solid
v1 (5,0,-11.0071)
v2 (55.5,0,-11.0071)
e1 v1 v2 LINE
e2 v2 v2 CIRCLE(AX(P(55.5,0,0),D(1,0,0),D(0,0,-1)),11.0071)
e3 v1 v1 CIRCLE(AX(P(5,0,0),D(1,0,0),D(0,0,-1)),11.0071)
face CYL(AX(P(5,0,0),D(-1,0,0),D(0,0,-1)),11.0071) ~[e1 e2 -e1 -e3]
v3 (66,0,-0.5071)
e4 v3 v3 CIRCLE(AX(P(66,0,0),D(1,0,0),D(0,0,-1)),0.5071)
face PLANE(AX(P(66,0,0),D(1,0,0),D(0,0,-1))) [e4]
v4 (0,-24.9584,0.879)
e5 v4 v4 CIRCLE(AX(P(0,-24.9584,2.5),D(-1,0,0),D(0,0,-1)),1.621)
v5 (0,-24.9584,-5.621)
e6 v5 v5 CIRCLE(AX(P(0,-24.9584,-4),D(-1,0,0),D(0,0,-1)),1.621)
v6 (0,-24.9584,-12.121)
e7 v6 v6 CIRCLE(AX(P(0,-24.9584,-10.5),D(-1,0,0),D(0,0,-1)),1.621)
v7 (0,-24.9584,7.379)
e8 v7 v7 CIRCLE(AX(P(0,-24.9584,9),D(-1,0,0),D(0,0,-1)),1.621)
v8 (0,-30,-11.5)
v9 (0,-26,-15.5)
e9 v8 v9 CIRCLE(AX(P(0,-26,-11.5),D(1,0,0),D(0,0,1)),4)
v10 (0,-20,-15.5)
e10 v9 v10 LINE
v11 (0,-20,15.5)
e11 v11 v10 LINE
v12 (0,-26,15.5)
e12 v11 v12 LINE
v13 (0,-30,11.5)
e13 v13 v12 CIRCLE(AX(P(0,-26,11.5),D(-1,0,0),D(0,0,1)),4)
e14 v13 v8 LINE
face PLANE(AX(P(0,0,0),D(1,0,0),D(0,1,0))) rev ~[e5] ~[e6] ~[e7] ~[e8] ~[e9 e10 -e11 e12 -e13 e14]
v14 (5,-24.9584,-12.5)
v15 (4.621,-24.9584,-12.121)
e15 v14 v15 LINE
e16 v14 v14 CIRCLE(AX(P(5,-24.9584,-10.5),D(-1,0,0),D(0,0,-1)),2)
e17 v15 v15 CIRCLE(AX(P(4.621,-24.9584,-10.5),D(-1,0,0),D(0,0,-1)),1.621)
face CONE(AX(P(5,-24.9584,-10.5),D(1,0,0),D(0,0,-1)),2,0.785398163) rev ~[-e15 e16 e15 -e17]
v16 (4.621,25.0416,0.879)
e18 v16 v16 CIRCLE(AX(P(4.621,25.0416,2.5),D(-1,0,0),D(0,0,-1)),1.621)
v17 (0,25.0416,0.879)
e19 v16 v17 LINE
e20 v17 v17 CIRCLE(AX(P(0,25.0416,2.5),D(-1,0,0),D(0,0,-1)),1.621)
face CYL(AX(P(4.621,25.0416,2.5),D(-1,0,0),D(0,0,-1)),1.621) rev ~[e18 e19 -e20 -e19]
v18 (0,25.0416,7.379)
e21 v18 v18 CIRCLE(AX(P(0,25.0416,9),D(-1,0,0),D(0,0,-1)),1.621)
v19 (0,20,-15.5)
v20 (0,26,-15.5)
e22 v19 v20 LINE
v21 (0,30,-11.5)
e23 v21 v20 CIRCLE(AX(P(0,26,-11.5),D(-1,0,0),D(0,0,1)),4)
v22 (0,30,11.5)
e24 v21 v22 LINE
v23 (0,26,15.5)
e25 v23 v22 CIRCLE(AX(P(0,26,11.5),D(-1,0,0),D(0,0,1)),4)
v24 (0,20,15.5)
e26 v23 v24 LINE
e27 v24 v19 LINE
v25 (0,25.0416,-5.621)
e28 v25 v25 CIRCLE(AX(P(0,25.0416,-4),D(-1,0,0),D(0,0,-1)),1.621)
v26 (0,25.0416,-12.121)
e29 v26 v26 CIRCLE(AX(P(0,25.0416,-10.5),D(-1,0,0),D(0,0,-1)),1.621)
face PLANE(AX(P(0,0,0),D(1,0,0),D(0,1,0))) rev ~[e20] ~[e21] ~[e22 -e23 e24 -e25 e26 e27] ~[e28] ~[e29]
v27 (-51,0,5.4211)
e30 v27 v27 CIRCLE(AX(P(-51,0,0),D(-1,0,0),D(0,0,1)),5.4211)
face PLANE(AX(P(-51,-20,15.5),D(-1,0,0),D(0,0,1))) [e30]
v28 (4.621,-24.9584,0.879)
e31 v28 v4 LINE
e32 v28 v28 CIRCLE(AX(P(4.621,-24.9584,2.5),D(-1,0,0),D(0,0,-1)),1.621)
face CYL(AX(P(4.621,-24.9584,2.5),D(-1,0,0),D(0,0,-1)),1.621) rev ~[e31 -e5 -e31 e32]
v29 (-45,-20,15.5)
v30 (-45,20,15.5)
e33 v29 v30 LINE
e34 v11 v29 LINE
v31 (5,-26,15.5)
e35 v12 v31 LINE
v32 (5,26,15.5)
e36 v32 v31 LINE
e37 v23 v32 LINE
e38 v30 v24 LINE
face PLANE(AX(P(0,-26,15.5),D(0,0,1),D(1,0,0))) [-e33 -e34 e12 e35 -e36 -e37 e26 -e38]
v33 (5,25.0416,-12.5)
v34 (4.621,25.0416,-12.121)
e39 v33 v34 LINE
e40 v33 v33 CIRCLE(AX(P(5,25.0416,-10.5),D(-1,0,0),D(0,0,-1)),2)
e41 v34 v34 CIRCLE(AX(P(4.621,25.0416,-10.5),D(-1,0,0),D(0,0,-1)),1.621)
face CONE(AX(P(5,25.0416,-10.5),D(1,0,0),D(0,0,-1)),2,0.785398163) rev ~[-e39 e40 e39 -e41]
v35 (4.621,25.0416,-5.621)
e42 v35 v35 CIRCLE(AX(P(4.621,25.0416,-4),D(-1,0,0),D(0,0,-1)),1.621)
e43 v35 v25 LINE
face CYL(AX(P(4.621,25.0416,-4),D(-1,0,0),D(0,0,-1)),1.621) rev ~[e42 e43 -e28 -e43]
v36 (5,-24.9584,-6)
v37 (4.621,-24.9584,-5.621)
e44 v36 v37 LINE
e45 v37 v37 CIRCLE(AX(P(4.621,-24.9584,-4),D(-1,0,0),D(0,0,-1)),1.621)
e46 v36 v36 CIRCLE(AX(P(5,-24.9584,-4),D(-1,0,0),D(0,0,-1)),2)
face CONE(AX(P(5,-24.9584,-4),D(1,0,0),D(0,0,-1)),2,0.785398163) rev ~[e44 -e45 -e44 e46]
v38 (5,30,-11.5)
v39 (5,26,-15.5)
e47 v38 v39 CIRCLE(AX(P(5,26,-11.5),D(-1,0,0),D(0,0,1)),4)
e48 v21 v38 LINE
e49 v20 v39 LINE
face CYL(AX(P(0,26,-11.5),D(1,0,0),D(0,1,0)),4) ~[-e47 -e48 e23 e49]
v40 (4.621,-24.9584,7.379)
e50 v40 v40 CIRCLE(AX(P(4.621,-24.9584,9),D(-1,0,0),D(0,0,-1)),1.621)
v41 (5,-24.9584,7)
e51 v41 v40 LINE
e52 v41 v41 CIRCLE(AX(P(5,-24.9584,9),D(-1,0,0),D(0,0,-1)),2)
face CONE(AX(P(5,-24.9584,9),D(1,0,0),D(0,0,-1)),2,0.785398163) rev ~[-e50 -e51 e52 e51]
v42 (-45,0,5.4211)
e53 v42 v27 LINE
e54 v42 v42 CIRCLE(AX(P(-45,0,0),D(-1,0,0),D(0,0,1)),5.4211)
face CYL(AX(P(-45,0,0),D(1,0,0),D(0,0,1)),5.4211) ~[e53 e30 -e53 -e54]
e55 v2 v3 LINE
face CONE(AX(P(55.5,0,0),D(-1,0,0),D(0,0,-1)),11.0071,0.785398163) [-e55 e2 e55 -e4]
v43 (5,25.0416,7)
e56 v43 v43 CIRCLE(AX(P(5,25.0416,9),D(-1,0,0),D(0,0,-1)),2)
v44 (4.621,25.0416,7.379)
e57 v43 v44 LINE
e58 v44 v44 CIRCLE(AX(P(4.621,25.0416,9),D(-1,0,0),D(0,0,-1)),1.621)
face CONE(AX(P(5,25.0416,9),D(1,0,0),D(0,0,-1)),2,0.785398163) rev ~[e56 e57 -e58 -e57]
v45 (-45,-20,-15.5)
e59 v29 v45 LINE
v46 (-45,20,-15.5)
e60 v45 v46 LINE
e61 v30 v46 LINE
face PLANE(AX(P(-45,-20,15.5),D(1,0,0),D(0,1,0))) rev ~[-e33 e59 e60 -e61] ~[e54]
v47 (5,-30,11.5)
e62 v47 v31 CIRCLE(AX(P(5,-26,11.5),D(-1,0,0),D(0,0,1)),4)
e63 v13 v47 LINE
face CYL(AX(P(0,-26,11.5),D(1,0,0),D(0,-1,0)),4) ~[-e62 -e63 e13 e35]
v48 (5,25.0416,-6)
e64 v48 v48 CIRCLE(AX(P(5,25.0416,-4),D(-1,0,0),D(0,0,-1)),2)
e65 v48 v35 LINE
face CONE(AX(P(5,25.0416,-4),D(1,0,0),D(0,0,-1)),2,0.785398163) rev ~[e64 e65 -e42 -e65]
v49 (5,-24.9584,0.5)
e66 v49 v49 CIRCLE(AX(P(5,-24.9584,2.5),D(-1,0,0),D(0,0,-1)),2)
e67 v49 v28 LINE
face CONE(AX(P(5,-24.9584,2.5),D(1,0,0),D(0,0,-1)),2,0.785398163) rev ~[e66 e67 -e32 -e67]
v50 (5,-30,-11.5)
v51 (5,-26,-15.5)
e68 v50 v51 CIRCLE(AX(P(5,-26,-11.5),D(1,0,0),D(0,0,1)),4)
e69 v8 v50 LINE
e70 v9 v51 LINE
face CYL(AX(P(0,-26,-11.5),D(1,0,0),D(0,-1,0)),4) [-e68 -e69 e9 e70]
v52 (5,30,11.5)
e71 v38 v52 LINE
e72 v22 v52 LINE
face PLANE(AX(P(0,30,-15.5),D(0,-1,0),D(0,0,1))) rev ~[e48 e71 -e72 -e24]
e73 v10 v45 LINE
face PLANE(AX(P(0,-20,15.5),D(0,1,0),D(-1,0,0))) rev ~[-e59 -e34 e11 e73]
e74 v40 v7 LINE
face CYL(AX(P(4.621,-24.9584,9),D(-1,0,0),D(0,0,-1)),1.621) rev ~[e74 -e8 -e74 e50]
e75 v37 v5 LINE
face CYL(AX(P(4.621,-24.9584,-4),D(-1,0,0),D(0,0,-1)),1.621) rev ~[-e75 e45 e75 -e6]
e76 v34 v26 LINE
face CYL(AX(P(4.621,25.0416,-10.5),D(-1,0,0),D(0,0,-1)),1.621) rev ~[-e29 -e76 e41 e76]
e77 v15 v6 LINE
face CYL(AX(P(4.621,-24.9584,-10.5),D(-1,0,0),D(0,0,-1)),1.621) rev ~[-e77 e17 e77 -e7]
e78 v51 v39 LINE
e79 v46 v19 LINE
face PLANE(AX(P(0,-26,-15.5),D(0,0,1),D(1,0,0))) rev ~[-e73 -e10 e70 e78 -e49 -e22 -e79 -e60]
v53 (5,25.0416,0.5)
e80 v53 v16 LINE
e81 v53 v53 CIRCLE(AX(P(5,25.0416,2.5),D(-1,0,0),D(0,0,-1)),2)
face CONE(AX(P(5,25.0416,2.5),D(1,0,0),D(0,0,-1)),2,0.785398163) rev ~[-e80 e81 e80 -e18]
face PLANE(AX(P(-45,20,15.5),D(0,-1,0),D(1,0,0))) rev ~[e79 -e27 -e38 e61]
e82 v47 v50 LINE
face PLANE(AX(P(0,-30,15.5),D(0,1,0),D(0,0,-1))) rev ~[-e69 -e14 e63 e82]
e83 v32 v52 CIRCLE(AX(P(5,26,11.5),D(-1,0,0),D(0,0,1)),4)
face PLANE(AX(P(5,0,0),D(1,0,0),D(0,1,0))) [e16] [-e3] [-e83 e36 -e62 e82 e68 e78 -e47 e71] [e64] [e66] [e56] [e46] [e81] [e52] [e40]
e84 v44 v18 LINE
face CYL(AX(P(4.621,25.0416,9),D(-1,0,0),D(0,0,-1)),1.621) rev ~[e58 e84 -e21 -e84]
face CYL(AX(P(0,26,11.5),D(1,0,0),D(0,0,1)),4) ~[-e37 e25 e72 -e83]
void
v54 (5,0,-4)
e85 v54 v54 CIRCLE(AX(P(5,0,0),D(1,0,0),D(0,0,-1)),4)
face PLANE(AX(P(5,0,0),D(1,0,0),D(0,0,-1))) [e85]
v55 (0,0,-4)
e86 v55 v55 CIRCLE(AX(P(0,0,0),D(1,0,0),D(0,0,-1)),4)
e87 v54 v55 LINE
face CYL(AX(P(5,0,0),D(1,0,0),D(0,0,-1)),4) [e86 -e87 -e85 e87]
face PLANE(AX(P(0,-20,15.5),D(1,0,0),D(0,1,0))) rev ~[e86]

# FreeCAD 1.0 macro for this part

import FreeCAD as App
import Part
import Sketcher

V = App.Vector
Q = App.Units.Quantity


def edges_at(feature, points):
    """Names of the edges that pass closest to the given points."""
    edges = feature.Shape.Edges
    near = lambda p: min(range(len(edges)), key=lambda i: edges[i].distToShape(Part.Vertex(*p))[0])
    return sorted({f"Edge{near(p) + 1}" for p in points})

doc = App.newDocument("Part")
params = doc.addObject("Spreadsheet::Sheet", "Params")
for row, (alias, value) in enumerate([
    ("sketch1_width", "60 mm"),
    ("sketch1_height", "31 mm"),
    ("pad1_length", "5 mm"),
    ("fillet_radius", "4 mm"),
    ("hole_diameter", "3.242 mm"),
    ("hole_depth", "11.8 mm"),
    ("hole_csink_diameter", "4 mm"),
    ("sketch3_diameter", "8 mm"),
    ("pocket1_length", "5 mm"),
    ("sketch4_height", "40 mm"),
    ("sketch4_width", "45 mm"),
    ("pad2_length", "31 mm"),
    ("pad3_length", "6 mm"),
    ("pad4_length", "61 mm"),
    ("chamfer_size", "10.5 mm"),
], start=1):
    params.set(f"A{row}", alias)
    params.set(f"B{row}", "=" + value)
    params.setAlias(f"B{row}", alias)

body = doc.addObject("PartDesign::Body", "Body")

# Sketch on YZ plane
sketch1 = body.newObject("Sketcher::SketchObject", "Sketch")
sketch1.AttachmentSupport = (doc.getObject("YZ_Plane"), [""])
sketch1.MapMode = "FlatFace"
sketch1.addGeometry(Part.LineSegment(V(-30, 16, 0), V(-30, -16, 0)), False)
sketch1.addGeometry(Part.LineSegment(V(-30, -16, 0), V(30, -16, 0)), False)
sketch1.addGeometry(Part.LineSegment(V(30, -16, 0), V(30, 16, 0)), False)
sketch1.addGeometry(Part.LineSegment(V(30, 16, 0), V(-30, 16, 0)), False)
sketch1.addConstraint(Sketcher.Constraint("Coincident", 0, 2, 1, 1))
sketch1.addConstraint(Sketcher.Constraint("Coincident", 1, 2, 2, 1))
sketch1.addConstraint(Sketcher.Constraint("Coincident", 2, 2, 3, 1))
sketch1.addConstraint(Sketcher.Constraint("Coincident", 3, 2, 0, 1))
sketch1.addConstraint(Sketcher.Constraint("Vertical", 0))
sketch1.addConstraint(Sketcher.Constraint("Horizontal", 1))
sketch1.addConstraint(Sketcher.Constraint("Vertical", 2))
sketch1.addConstraint(Sketcher.Constraint("Horizontal", 3))
sketch1.addConstraint(Sketcher.Constraint("Symmetric", 0, 2, 2, 2, -1, 1))
sketch1.addConstraint(Sketcher.Constraint("DistanceX", 1, 1, 1, 2, Q("60 mm")))
sketch1.addConstraint(Sketcher.Constraint("DistanceY", 0, 2, 0, 1, Q("31 mm")))
sketch1.setExpression("Constraints[9]", "Params.sketch1_width")
sketch1.setExpression("Constraints[10]", "Params.sketch1_height")
pad1 = body.newObject("PartDesign::Pad", "Pad")
pad1.Profile = sketch1
pad1.setExpression("Length", "Params.pad1_length")
doc.recompute()

fillet = body.newObject("PartDesign::Fillet", "Fillet")
fillet.Base = (pad1, edges_at(pad1, [
    (2.5, 30, 15.5),
    (2.5, 30, -15.5),
    (2.5, -30, -15.5),
    (2.5, -30, 15.5),
]))
fillet.setExpression("Radius", "Params.fillet_radius")

# Sketch on YZ plane
sketch2 = body.newObject("Sketcher::SketchObject", "Sketch001")
sketch2.AttachmentSupport = (doc.getObject("YZ_Plane"), [""])
sketch2.MapMode = "FlatFace"
sketch2.AttachmentOffset = App.Placement(V(0, 0, 5), App.Rotation())
sketch2.addGeometry(Part.Circle(V(25, 9, 0), V(0, 0, 1), 1.6), False)
sketch2.addGeometry(Part.Circle(V(-25, 9, 0), V(0, 0, 1), 1.6), False)
sketch2.addGeometry(Part.Circle(V(25, 2.5, 0), V(0, 0, 1), 1.6), False)
sketch2.addGeometry(Part.Circle(V(-25, 2.5, 0), V(0, 0, 1), 1.6), False)
sketch2.addGeometry(Part.Circle(V(25, -4, 0), V(0, 0, 1), 1.6), False)
sketch2.addGeometry(Part.Circle(V(-25, -4, 0), V(0, 0, 1), 1.6), False)
sketch2.addGeometry(Part.Circle(V(25, -10.5, 0), V(0, 0, 1), 1.6), False)
sketch2.addGeometry(Part.Circle(V(-25, -10.5, 0), V(0, 0, 1), 1.6), False)
sketch2.addConstraint(Sketcher.Constraint("Equal", 0, 1))
sketch2.addConstraint(Sketcher.Constraint("Equal", 1, 2))
sketch2.addConstraint(Sketcher.Constraint("Equal", 2, 3))
sketch2.addConstraint(Sketcher.Constraint("Equal", 3, 4))
sketch2.addConstraint(Sketcher.Constraint("Equal", 4, 5))
sketch2.addConstraint(Sketcher.Constraint("Equal", 5, 6))
sketch2.addConstraint(Sketcher.Constraint("Equal", 6, 7))
sketch2.addConstraint(Sketcher.Constraint("Horizontal", 0, 3, 1, 3))
sketch2.addConstraint(Sketcher.Constraint("Horizontal", 2, 3, 3, 3))
sketch2.addConstraint(Sketcher.Constraint("Horizontal", 4, 3, 5, 3))
sketch2.addConstraint(Sketcher.Constraint("Horizontal", 6, 3, 7, 3))
sketch2.addConstraint(Sketcher.Constraint("Vertical", 0, 3, 2, 3))
sketch2.addConstraint(Sketcher.Constraint("Vertical", 1, 3, 3, 3))
sketch2.addConstraint(Sketcher.Constraint("Vertical", 2, 3, 4, 3))
sketch2.addConstraint(Sketcher.Constraint("Vertical", 3, 3, 5, 3))
sketch2.addConstraint(Sketcher.Constraint("Vertical", 4, 3, 6, 3))
sketch2.addConstraint(Sketcher.Constraint("Vertical", 5, 3, 7, 3))
sketch2.addConstraint(Sketcher.Constraint("Diameter", 0, Q("3.242 mm")))
sketch2.addConstraint(Sketcher.Constraint("DistanceY", -1, 1, 0, 3, Q("9 mm")))
sketch2.addConstraint(Sketcher.Constraint("DistanceY", 4, 3, -1, 1, Q("4 mm")))
sketch2.addConstraint(Sketcher.Constraint("DistanceX", 1, 3, 0, 3, Q("50 mm")))
sketch2.addConstraint(Sketcher.Constraint("DistanceY", 6, 3, 2, 3, Q("13 mm")))
sketch2.addConstraint(Sketcher.Constraint("DistanceY", -1, 1, 2, 3, Q("2.5 mm")))
sketch2.addConstraint(Sketcher.Constraint("DistanceX", -1, 1, 0, 3, Q("25.0416 mm")))
doc.recompute()
hole = body.newObject("PartDesign::Hole", "Hole")
hole.Profile = sketch2
hole.ThreadType = "None"
hole.setExpression("Diameter", "Params.hole_diameter")
hole.DepthType = "Dimension"
hole.setExpression("Depth", "Params.hole_depth")
hole.DrillPoint = "Angled"
hole.DrillPointAngle = 118
hole.HoleCutType = "Countersink"
hole.setExpression("HoleCutDiameter", "Params.hole_csink_diameter")
hole.HoleCutCountersinkAngle = 90

# Sketch on YZ plane
sketch3 = body.newObject("Sketcher::SketchObject", "Sketch002")
sketch3.AttachmentSupport = (doc.getObject("YZ_Plane"), [""])
sketch3.MapMode = "FlatFace"
sketch3.AttachmentOffset = App.Placement(V(0, 0, 5), App.Rotation())
sketch3.addGeometry(Part.Circle(V(0, 0, 0), V(0, 0, 1), 4), False)
sketch3.addConstraint(Sketcher.Constraint("Coincident", 0, 3, -1, 1))
sketch3.addConstraint(Sketcher.Constraint("Diameter", 0, Q("8 mm")))
sketch3.setExpression("Constraints[1]", "Params.sketch3_diameter")
pocket1 = body.newObject("PartDesign::Pocket", "Pocket")
pocket1.Profile = sketch3
pocket1.setExpression("Length", "Params.pocket1_length")

# Sketch on XY plane
sketch4 = body.newObject("Sketcher::SketchObject", "Sketch003")
sketch4.AttachmentSupport = (doc.getObject("XY_Plane"), [""])
sketch4.MapMode = "FlatFace"
sketch4.AttachmentOffset = App.Placement(V(0, 0, 15.5), App.Rotation())
sketch4.addGeometry(Part.LineSegment(V(-45, -20, 0), V(0, -20, 0)), False)
sketch4.addGeometry(Part.LineSegment(V(0, -20, 0), V(0, 20, 0)), False)
sketch4.addGeometry(Part.LineSegment(V(0, 20, 0), V(-45, 20, 0)), False)
sketch4.addGeometry(Part.LineSegment(V(-45, 20, 0), V(-45, -20, 0)), False)
sketch4.addConstraint(Sketcher.Constraint("Coincident", 0, 2, 1, 1))
sketch4.addConstraint(Sketcher.Constraint("Coincident", 1, 2, 2, 1))
sketch4.addConstraint(Sketcher.Constraint("Coincident", 2, 2, 3, 1))
sketch4.addConstraint(Sketcher.Constraint("Coincident", 3, 2, 0, 1))
sketch4.addConstraint(Sketcher.Constraint("Horizontal", 0))
sketch4.addConstraint(Sketcher.Constraint("Vertical", 1))
sketch4.addConstraint(Sketcher.Constraint("Horizontal", 2))
sketch4.addConstraint(Sketcher.Constraint("Vertical", 3))
sketch4.addConstraint(Sketcher.Constraint("Symmetric", 0, 2, 1, 2, -1, 1))
sketch4.addConstraint(Sketcher.Constraint("DistanceY", 1, 1, 1, 2, Q("40 mm")))
sketch4.addConstraint(Sketcher.Constraint("DistanceX", 0, 1, 0, 2, Q("45 mm")))
sketch4.setExpression("Constraints[9]", "Params.sketch4_height")
sketch4.setExpression("Constraints[10]", "Params.sketch4_width")
pad2 = body.newObject("PartDesign::Pad", "Pad001")
pad2.Profile = sketch4
pad2.setExpression("Length", "Params.pad2_length")
pad2.Reversed = True

# Sketch on YZ plane
sketch5 = body.newObject("Sketcher::SketchObject", "Sketch004")
sketch5.AttachmentSupport = (doc.getObject("YZ_Plane"), [""])
sketch5.MapMode = "FlatFace"
sketch5.AttachmentOffset = App.Placement(V(0, 0, -45), App.Rotation())
sketch5.addGeometry(Part.Circle(V(0, 0, 0), V(0, 0, 1), 5), False)
sketch5.addConstraint(Sketcher.Constraint("Coincident", 0, 3, -1, 1))
sketch5.addConstraint(Sketcher.Constraint("Diameter", 0, Q("10.8422 mm")))
pad3 = body.newObject("PartDesign::Pad", "Pad002")
pad3.Profile = sketch5
pad3.setExpression("Length", "Params.pad3_length")
pad3.Reversed = True

# Sketch on YZ plane
sketch6 = body.newObject("Sketcher::SketchObject", "Sketch005")
sketch6.AttachmentSupport = (doc.getObject("YZ_Plane"), [""])
sketch6.MapMode = "FlatFace"
sketch6.AttachmentOffset = App.Placement(V(0, 0, 5), App.Rotation())
sketch6.addGeometry(Part.Circle(V(0, 0, 0), V(0, 0, 1), 11), False)
sketch6.addConstraint(Sketcher.Constraint("Coincident", 0, 3, -1, 1))
sketch6.addConstraint(Sketcher.Constraint("Diameter", 0, Q("22.0142 mm")))
pad4 = body.newObject("PartDesign::Pad", "Pad003")
pad4.Profile = sketch6
pad4.setExpression("Length", "Params.pad4_length")
doc.recompute()

chamfer = body.newObject("PartDesign::Chamfer", "Chamfer")
chamfer.Base = (pad4, edges_at(pad4, [(66, 0, 11.007)]))
chamfer.setExpression("Size", "Params.chamfer_size")

doc.recompute()
